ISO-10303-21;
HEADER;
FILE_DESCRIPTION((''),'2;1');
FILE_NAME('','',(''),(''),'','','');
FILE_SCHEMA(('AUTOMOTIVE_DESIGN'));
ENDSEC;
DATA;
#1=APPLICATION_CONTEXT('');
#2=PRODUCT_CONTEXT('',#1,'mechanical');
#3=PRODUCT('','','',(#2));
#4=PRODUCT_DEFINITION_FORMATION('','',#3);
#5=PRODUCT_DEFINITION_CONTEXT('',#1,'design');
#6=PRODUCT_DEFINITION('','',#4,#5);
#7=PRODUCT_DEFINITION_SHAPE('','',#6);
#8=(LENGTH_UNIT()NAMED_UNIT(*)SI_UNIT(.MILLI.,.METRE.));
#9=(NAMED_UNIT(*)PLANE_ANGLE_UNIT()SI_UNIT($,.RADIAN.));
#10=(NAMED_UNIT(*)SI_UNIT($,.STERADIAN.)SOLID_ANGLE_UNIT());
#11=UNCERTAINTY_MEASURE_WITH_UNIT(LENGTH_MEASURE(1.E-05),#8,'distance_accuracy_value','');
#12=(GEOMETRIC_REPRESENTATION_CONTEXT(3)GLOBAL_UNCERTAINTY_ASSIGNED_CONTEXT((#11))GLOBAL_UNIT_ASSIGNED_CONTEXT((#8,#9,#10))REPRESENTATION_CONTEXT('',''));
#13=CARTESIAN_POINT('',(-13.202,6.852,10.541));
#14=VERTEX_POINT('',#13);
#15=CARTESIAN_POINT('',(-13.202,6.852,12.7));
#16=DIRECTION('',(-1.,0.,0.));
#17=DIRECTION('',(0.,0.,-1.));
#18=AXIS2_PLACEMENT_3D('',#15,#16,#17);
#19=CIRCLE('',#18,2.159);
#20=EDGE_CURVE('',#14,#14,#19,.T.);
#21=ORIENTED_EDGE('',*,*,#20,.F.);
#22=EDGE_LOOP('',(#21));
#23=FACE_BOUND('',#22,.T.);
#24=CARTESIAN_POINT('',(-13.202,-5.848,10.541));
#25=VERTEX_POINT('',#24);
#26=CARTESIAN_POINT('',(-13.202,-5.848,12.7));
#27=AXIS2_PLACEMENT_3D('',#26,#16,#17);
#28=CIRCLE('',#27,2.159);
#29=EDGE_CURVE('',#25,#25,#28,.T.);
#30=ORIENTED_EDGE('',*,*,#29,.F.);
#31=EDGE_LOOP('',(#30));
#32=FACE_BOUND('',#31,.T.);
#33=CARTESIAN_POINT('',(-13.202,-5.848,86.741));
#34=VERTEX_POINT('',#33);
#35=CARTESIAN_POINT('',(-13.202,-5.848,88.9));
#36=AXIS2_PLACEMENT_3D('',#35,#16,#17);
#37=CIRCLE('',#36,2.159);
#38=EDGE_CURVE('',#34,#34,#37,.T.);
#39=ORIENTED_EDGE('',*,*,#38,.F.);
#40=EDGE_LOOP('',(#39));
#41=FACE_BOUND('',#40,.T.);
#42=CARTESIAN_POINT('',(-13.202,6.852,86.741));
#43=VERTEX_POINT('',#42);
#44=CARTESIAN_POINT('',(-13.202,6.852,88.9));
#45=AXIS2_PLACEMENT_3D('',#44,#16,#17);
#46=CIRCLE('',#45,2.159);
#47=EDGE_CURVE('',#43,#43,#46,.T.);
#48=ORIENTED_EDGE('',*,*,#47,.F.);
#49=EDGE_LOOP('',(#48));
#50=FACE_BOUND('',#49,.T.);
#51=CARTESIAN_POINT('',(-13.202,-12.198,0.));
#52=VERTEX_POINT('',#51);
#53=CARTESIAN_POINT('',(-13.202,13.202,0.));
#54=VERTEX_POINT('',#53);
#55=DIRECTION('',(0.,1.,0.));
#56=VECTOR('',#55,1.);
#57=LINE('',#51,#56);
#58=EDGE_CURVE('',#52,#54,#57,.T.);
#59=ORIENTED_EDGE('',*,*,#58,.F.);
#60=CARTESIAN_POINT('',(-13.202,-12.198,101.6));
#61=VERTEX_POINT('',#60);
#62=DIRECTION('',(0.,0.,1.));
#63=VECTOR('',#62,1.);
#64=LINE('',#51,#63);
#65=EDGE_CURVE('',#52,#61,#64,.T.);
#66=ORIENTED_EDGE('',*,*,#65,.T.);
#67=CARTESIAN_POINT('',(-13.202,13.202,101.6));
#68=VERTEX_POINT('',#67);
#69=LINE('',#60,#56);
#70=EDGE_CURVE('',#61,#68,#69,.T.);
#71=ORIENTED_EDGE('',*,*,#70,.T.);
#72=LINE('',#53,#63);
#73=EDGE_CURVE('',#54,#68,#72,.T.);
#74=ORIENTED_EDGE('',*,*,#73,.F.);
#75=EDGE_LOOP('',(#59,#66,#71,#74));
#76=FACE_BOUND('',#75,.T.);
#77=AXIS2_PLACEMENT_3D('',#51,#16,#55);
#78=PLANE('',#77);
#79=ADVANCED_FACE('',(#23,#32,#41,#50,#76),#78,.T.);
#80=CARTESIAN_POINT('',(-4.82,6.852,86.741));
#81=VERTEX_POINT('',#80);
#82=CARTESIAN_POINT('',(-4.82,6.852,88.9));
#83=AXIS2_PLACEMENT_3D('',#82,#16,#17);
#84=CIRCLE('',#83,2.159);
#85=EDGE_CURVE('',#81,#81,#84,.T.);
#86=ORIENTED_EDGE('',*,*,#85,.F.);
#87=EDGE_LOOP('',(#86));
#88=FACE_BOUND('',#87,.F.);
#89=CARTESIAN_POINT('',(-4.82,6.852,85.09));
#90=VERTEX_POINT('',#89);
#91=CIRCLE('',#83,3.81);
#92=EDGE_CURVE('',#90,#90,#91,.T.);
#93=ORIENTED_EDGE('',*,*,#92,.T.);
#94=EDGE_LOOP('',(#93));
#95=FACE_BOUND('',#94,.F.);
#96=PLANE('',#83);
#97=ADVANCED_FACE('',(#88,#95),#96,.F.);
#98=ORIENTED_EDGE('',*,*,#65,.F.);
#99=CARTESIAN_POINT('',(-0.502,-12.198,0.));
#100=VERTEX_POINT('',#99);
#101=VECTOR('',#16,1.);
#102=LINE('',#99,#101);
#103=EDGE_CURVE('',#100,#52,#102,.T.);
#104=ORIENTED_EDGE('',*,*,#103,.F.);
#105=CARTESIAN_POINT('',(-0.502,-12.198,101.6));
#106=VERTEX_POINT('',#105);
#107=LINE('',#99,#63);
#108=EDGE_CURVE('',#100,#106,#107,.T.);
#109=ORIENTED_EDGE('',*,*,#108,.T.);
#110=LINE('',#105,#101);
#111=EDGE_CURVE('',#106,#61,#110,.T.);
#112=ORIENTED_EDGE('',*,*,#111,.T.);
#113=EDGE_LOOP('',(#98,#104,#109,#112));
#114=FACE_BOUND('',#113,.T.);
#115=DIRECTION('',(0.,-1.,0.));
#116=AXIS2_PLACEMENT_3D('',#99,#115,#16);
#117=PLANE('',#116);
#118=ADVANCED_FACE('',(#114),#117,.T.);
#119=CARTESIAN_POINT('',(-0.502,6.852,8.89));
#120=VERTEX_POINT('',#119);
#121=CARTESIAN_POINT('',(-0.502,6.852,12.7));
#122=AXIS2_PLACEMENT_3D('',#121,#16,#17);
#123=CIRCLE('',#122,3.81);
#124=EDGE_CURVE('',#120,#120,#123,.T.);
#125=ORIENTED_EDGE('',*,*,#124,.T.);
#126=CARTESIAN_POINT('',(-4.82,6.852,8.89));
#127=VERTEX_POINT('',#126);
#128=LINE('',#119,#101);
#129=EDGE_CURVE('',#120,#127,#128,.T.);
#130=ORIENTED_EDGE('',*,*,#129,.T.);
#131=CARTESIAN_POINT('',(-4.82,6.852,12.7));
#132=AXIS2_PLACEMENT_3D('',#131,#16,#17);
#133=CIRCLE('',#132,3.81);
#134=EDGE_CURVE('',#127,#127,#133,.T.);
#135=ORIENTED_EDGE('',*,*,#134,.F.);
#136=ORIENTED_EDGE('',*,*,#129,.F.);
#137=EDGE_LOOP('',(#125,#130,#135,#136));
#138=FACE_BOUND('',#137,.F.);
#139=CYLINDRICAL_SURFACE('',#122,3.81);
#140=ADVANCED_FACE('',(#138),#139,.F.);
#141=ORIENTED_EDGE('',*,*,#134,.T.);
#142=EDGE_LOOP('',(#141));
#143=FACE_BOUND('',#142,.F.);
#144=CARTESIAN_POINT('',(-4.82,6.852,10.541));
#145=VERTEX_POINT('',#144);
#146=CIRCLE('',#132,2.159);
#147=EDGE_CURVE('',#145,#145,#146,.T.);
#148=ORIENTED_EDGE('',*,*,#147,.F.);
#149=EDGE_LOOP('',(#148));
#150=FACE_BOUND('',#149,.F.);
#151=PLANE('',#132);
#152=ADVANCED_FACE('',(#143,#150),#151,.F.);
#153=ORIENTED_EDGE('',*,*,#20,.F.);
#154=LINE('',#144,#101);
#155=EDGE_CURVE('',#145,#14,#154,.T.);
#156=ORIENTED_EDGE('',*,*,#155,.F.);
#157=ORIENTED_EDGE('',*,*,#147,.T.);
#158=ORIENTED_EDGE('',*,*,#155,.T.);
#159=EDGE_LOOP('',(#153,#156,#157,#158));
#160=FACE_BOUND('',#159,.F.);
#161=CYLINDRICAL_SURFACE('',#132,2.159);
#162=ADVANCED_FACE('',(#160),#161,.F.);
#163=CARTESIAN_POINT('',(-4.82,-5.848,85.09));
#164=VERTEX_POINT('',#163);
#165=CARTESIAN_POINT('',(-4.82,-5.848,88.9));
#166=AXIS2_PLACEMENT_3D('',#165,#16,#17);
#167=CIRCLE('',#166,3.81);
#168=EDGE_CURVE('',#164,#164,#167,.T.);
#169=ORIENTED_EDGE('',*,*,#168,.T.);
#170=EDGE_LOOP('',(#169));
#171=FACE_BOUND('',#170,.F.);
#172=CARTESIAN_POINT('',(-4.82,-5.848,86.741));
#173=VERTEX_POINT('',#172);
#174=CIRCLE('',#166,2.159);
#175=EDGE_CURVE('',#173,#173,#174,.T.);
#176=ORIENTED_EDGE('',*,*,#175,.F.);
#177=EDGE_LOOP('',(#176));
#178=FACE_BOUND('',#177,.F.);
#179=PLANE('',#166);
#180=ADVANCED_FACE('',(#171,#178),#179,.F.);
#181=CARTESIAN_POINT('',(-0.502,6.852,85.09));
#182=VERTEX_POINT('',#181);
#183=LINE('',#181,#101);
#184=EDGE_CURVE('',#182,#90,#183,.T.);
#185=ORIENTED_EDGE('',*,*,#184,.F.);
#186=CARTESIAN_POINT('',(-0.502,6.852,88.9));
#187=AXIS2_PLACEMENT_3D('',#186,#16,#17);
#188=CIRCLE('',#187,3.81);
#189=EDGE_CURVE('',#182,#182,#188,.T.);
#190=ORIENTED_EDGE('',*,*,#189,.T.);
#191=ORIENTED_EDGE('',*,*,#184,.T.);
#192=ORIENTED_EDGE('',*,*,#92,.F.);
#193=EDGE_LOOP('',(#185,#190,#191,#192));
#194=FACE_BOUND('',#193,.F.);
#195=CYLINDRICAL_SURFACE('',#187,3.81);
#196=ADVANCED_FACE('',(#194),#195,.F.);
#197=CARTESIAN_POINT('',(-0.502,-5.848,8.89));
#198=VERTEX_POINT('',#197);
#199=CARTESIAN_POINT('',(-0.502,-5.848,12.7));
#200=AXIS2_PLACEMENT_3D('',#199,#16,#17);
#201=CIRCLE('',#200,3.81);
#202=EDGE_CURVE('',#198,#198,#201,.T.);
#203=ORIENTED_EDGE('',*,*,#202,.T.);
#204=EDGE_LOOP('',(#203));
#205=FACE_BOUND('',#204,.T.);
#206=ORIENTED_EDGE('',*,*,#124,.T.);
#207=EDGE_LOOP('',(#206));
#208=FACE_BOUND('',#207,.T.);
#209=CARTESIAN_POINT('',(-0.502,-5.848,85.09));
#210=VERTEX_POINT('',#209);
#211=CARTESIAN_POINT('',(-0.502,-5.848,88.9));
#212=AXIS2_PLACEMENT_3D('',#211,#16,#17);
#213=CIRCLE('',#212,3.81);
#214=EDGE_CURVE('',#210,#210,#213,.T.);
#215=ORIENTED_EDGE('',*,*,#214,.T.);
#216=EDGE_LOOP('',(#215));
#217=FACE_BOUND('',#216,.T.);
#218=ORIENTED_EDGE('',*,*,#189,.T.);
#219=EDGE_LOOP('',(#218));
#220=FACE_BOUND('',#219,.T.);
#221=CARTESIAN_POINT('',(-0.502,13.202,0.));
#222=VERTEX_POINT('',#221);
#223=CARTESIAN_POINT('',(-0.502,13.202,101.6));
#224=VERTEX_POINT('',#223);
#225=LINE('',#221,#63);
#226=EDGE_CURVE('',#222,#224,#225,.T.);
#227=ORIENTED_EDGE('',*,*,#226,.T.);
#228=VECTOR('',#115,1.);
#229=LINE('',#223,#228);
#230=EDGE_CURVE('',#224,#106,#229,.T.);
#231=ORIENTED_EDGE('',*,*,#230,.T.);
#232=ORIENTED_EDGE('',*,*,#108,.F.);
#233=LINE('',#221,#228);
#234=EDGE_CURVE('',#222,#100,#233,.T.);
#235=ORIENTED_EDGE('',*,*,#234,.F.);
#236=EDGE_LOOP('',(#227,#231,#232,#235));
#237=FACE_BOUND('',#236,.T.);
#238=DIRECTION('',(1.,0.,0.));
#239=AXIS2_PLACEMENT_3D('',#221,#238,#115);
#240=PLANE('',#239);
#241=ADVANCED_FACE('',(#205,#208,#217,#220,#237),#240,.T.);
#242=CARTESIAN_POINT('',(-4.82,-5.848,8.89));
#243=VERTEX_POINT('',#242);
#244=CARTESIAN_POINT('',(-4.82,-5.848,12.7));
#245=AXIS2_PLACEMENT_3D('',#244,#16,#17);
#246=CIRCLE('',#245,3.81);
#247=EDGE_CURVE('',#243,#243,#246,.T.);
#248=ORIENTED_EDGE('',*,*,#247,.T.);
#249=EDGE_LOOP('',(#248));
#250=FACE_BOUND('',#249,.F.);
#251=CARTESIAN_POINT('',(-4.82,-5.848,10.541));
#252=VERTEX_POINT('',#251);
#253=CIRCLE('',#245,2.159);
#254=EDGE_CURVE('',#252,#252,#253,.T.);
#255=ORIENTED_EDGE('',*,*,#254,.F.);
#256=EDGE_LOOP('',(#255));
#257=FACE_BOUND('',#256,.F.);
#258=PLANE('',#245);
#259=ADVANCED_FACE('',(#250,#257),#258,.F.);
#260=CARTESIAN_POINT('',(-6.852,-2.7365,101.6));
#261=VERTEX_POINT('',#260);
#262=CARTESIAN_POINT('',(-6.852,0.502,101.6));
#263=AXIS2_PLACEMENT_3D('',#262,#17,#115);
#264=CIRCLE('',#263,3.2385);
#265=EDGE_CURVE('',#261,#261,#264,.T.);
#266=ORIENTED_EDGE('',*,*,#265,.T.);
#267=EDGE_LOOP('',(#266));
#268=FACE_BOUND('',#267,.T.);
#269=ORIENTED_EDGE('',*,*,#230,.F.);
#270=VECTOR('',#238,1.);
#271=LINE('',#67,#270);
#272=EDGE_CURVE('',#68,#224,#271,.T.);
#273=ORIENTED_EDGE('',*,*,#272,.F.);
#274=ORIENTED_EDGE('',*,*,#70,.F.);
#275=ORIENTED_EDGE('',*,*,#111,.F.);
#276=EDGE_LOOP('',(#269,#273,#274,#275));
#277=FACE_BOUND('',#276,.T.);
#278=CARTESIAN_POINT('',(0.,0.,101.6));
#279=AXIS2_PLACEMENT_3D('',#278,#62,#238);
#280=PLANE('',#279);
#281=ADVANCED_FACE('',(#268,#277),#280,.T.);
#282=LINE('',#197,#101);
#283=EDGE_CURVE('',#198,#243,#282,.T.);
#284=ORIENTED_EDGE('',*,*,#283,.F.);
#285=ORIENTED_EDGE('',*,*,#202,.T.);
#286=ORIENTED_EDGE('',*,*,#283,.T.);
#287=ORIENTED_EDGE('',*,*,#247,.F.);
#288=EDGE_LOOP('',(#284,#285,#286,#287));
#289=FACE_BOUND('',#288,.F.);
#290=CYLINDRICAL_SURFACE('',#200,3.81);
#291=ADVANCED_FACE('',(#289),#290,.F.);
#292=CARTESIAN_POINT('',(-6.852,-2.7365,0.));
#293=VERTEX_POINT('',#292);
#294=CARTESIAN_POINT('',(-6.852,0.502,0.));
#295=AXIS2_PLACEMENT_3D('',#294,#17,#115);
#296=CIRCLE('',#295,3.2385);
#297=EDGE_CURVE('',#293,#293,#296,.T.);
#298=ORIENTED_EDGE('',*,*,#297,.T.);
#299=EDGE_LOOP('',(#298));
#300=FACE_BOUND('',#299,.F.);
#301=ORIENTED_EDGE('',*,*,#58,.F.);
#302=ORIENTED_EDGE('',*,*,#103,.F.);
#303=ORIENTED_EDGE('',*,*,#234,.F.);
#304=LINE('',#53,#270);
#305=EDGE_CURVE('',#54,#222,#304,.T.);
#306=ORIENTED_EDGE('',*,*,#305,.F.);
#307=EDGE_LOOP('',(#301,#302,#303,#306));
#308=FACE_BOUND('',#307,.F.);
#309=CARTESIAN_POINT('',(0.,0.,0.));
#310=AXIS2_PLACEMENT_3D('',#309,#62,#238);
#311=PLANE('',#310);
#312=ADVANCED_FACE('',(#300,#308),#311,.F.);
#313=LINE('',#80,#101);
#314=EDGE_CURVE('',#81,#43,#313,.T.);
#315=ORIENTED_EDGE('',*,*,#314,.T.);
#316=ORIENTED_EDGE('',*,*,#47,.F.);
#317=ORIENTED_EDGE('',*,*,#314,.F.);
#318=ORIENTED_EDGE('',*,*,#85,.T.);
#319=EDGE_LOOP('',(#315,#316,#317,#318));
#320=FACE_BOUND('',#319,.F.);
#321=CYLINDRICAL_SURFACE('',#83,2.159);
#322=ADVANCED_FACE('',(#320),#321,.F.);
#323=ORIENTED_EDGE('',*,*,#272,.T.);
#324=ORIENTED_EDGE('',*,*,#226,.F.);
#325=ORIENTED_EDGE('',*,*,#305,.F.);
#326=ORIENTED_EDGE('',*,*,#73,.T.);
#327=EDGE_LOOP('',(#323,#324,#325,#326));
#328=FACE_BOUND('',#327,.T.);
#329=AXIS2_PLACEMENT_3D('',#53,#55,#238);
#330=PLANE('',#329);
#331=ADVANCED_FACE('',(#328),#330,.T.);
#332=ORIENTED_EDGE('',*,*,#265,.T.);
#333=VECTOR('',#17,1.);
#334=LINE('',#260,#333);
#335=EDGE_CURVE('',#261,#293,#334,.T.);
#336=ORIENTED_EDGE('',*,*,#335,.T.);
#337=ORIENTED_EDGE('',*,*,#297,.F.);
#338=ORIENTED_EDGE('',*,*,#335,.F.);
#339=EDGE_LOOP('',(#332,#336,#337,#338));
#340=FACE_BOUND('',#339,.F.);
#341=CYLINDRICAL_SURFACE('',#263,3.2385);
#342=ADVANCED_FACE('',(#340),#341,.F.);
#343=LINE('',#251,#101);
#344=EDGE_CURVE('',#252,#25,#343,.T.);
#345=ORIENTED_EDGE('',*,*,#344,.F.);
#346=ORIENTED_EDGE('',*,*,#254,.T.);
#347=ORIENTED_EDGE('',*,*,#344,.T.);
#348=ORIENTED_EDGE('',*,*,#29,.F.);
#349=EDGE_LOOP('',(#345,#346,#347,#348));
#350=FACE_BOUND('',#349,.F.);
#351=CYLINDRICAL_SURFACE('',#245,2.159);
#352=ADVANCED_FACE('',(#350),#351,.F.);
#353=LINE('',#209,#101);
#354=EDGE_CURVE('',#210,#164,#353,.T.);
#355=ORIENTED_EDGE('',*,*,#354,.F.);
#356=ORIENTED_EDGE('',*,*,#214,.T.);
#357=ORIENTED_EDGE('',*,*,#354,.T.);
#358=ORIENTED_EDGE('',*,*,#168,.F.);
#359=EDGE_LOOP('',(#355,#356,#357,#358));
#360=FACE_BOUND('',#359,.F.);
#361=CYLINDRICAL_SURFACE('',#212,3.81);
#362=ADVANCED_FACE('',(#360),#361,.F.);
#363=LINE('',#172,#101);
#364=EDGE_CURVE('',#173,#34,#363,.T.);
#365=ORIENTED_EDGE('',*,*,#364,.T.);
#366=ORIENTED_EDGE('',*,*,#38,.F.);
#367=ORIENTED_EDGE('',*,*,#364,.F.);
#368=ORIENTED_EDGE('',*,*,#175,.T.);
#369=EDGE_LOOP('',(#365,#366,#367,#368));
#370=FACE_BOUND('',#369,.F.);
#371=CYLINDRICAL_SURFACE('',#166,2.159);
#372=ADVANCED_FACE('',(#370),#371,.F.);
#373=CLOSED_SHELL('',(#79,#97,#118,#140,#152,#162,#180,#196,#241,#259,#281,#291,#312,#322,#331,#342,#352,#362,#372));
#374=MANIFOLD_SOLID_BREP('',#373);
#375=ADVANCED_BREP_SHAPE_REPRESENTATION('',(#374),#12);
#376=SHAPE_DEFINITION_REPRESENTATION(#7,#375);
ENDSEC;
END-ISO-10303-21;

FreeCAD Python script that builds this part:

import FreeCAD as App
import Part
import Sketcher
from FreeCAD import Vector
Q = App.Units.Quantity


def add_polygon(sketch, points):
    """Adds a closed chain of lines whose ends are joined by coincident constraints."""
    first, n = sketch.GeometryCount, len(points)
    for a, b in zip(points, points[1:] + points[:1]):
        sketch.addGeometry(Part.LineSegment(App.Vector(*a, 0), App.Vector(*b, 0)), False)
    for i in range(n):
        sketch.addConstraint(Sketcher.Constraint("Coincident", first + i, 2, first + (i + 1) % n, 1))

doc = App.newDocument("Part")
body = doc.addObject("PartDesign::Body", "Body")

sketch1 = body.newObject("Sketcher::SketchObject", "Sketch")
sketch1.AttachmentSupport = (doc.getObject("XY_Plane"), [""])
sketch1.MapMode = "FlatFace"
add_polygon(sketch1, [(-0.502, 13.202), (-13.202, 13.202), (-13.202, -12.198), (-0.502, -12.198)])
sketch1.addConstraint(Sketcher.Constraint("Horizontal", 0))
sketch1.addConstraint(Sketcher.Constraint("Vertical", 1))
sketch1.addConstraint(Sketcher.Constraint("Horizontal", 2))
sketch1.addConstraint(Sketcher.Constraint("Vertical", 3))
sketch1.addConstraint(Sketcher.Constraint("DistanceY", 1, 2, 1, 1, Q("1 in")))
sketch1.addConstraint(Sketcher.Constraint("DistanceX", 0, 2, 0, 1, Q("0.5 in")))
sketch1.addConstraint(Sketcher.Constraint("DistanceX", 0, 2, -1, 1, Q("13.202 mm")))
sketch1.addConstraint(Sketcher.Constraint("DistanceY", -1, 1, 0, 2, Q("13.202 mm")))
pad1 = body.newObject("PartDesign::Pad", "Pad")
pad1.Profile = sketch1
pad1.Length = Q("4 in")

sketch2 = body.newObject("Sketcher::SketchObject", "Sketch001")
sketch2.AttachmentSupport = (doc.getObject("XY_Plane"), [""])
sketch2.MapMode = "FlatFace"
sketch2.AttachmentOffset = App.Placement(Vector(0, 0, 4 * 25.4), App.Rotation())
sketch2.addGeometry(Part.Circle(Vector(-6.852, 0.502, 0), Vector(0, 0, 1), 3.2385), False)
sketch2.addConstraint(Sketcher.Constraint("Diameter", 0, Q("0.255 in")))
sketch2.addConstraint(Sketcher.Constraint("DistanceX", 0, 3, -1, 1, Q("6.852 mm")))
sketch2.addConstraint(Sketcher.Constraint("DistanceY", -1, 1, 0, 3, Q("0.502 mm")))
doc.recompute()
hole = body.newObject("PartDesign::Hole", "Hole")
hole.Profile = sketch2
hole.ThreadType = "None"
hole.Diameter = Q("0.255 in")
hole.DepthType = "ThroughAll"

sketch3 = body.newObject("Sketcher::SketchObject", "Sketch002")
sketch3.AttachmentSupport = (doc.getObject("YZ_Plane"), [""])
sketch3.MapMode = "FlatFace"
sketch3.AttachmentOffset = App.Placement(Vector(0, 0, -0.502), App.Rotation())
sketch3.addGeometry(Part.Circle(Vector(6.852, 12.7, 0), Vector(0, 0, 1), 2.159), False)
sketch3.addGeometry(Part.Circle(Vector(-5.848, 12.7, 0), Vector(0, 0, 1), 2.159), False)
sketch3.addGeometry(Part.Circle(Vector(6.852, 88.9, 0), Vector(0, 0, 1), 2.159), False)
sketch3.addGeometry(Part.Circle(Vector(-5.848, 88.9, 0), Vector(0, 0, 1), 2.159), False)
sketch3.addConstraint(Sketcher.Constraint("Equal", 0, 1))
sketch3.addConstraint(Sketcher.Constraint("Equal", 1, 2))
sketch3.addConstraint(Sketcher.Constraint("Equal", 2, 3))
sketch3.addConstraint(Sketcher.Constraint("Horizontal", 0, 3, 1, 3))
sketch3.addConstraint(Sketcher.Constraint("Horizontal", 2, 3, 3, 3))
sketch3.addConstraint(Sketcher.Constraint("Vertical", 0, 3, 2, 3))
sketch3.addConstraint(Sketcher.Constraint("Vertical", 1, 3, 3, 3))
sketch3.addConstraint(Sketcher.Constraint("Diameter", 0, Q("0.17 in")))
sketch3.addConstraint(Sketcher.Constraint("DistanceY", 0, 3, 2, 3, Q("3 in")))
sketch3.addConstraint(Sketcher.Constraint("DistanceY", -1, 1, 0, 3, Q("0.5 in")))
sketch3.addConstraint(Sketcher.Constraint("DistanceX", 1, 3, 0, 3, Q("0.5 in")))
sketch3.addConstraint(Sketcher.Constraint("DistanceX", -1, 1, 0, 3, Q("6.852 mm")))
doc.recompute()
hole2 = body.newObject("PartDesign::Hole", "Hole001")
hole2.Profile = sketch3
hole2.ThreadType = "None"
hole2.Diameter = Q("0.17 in")
hole2.DepthType = "ThroughAll"
hole2.HoleCutType = "Counterbore"
hole2.HoleCutDiameter = Q("0.3 in")
hole2.HoleCutDepth = Q("0.17 in")

doc.recompute()
